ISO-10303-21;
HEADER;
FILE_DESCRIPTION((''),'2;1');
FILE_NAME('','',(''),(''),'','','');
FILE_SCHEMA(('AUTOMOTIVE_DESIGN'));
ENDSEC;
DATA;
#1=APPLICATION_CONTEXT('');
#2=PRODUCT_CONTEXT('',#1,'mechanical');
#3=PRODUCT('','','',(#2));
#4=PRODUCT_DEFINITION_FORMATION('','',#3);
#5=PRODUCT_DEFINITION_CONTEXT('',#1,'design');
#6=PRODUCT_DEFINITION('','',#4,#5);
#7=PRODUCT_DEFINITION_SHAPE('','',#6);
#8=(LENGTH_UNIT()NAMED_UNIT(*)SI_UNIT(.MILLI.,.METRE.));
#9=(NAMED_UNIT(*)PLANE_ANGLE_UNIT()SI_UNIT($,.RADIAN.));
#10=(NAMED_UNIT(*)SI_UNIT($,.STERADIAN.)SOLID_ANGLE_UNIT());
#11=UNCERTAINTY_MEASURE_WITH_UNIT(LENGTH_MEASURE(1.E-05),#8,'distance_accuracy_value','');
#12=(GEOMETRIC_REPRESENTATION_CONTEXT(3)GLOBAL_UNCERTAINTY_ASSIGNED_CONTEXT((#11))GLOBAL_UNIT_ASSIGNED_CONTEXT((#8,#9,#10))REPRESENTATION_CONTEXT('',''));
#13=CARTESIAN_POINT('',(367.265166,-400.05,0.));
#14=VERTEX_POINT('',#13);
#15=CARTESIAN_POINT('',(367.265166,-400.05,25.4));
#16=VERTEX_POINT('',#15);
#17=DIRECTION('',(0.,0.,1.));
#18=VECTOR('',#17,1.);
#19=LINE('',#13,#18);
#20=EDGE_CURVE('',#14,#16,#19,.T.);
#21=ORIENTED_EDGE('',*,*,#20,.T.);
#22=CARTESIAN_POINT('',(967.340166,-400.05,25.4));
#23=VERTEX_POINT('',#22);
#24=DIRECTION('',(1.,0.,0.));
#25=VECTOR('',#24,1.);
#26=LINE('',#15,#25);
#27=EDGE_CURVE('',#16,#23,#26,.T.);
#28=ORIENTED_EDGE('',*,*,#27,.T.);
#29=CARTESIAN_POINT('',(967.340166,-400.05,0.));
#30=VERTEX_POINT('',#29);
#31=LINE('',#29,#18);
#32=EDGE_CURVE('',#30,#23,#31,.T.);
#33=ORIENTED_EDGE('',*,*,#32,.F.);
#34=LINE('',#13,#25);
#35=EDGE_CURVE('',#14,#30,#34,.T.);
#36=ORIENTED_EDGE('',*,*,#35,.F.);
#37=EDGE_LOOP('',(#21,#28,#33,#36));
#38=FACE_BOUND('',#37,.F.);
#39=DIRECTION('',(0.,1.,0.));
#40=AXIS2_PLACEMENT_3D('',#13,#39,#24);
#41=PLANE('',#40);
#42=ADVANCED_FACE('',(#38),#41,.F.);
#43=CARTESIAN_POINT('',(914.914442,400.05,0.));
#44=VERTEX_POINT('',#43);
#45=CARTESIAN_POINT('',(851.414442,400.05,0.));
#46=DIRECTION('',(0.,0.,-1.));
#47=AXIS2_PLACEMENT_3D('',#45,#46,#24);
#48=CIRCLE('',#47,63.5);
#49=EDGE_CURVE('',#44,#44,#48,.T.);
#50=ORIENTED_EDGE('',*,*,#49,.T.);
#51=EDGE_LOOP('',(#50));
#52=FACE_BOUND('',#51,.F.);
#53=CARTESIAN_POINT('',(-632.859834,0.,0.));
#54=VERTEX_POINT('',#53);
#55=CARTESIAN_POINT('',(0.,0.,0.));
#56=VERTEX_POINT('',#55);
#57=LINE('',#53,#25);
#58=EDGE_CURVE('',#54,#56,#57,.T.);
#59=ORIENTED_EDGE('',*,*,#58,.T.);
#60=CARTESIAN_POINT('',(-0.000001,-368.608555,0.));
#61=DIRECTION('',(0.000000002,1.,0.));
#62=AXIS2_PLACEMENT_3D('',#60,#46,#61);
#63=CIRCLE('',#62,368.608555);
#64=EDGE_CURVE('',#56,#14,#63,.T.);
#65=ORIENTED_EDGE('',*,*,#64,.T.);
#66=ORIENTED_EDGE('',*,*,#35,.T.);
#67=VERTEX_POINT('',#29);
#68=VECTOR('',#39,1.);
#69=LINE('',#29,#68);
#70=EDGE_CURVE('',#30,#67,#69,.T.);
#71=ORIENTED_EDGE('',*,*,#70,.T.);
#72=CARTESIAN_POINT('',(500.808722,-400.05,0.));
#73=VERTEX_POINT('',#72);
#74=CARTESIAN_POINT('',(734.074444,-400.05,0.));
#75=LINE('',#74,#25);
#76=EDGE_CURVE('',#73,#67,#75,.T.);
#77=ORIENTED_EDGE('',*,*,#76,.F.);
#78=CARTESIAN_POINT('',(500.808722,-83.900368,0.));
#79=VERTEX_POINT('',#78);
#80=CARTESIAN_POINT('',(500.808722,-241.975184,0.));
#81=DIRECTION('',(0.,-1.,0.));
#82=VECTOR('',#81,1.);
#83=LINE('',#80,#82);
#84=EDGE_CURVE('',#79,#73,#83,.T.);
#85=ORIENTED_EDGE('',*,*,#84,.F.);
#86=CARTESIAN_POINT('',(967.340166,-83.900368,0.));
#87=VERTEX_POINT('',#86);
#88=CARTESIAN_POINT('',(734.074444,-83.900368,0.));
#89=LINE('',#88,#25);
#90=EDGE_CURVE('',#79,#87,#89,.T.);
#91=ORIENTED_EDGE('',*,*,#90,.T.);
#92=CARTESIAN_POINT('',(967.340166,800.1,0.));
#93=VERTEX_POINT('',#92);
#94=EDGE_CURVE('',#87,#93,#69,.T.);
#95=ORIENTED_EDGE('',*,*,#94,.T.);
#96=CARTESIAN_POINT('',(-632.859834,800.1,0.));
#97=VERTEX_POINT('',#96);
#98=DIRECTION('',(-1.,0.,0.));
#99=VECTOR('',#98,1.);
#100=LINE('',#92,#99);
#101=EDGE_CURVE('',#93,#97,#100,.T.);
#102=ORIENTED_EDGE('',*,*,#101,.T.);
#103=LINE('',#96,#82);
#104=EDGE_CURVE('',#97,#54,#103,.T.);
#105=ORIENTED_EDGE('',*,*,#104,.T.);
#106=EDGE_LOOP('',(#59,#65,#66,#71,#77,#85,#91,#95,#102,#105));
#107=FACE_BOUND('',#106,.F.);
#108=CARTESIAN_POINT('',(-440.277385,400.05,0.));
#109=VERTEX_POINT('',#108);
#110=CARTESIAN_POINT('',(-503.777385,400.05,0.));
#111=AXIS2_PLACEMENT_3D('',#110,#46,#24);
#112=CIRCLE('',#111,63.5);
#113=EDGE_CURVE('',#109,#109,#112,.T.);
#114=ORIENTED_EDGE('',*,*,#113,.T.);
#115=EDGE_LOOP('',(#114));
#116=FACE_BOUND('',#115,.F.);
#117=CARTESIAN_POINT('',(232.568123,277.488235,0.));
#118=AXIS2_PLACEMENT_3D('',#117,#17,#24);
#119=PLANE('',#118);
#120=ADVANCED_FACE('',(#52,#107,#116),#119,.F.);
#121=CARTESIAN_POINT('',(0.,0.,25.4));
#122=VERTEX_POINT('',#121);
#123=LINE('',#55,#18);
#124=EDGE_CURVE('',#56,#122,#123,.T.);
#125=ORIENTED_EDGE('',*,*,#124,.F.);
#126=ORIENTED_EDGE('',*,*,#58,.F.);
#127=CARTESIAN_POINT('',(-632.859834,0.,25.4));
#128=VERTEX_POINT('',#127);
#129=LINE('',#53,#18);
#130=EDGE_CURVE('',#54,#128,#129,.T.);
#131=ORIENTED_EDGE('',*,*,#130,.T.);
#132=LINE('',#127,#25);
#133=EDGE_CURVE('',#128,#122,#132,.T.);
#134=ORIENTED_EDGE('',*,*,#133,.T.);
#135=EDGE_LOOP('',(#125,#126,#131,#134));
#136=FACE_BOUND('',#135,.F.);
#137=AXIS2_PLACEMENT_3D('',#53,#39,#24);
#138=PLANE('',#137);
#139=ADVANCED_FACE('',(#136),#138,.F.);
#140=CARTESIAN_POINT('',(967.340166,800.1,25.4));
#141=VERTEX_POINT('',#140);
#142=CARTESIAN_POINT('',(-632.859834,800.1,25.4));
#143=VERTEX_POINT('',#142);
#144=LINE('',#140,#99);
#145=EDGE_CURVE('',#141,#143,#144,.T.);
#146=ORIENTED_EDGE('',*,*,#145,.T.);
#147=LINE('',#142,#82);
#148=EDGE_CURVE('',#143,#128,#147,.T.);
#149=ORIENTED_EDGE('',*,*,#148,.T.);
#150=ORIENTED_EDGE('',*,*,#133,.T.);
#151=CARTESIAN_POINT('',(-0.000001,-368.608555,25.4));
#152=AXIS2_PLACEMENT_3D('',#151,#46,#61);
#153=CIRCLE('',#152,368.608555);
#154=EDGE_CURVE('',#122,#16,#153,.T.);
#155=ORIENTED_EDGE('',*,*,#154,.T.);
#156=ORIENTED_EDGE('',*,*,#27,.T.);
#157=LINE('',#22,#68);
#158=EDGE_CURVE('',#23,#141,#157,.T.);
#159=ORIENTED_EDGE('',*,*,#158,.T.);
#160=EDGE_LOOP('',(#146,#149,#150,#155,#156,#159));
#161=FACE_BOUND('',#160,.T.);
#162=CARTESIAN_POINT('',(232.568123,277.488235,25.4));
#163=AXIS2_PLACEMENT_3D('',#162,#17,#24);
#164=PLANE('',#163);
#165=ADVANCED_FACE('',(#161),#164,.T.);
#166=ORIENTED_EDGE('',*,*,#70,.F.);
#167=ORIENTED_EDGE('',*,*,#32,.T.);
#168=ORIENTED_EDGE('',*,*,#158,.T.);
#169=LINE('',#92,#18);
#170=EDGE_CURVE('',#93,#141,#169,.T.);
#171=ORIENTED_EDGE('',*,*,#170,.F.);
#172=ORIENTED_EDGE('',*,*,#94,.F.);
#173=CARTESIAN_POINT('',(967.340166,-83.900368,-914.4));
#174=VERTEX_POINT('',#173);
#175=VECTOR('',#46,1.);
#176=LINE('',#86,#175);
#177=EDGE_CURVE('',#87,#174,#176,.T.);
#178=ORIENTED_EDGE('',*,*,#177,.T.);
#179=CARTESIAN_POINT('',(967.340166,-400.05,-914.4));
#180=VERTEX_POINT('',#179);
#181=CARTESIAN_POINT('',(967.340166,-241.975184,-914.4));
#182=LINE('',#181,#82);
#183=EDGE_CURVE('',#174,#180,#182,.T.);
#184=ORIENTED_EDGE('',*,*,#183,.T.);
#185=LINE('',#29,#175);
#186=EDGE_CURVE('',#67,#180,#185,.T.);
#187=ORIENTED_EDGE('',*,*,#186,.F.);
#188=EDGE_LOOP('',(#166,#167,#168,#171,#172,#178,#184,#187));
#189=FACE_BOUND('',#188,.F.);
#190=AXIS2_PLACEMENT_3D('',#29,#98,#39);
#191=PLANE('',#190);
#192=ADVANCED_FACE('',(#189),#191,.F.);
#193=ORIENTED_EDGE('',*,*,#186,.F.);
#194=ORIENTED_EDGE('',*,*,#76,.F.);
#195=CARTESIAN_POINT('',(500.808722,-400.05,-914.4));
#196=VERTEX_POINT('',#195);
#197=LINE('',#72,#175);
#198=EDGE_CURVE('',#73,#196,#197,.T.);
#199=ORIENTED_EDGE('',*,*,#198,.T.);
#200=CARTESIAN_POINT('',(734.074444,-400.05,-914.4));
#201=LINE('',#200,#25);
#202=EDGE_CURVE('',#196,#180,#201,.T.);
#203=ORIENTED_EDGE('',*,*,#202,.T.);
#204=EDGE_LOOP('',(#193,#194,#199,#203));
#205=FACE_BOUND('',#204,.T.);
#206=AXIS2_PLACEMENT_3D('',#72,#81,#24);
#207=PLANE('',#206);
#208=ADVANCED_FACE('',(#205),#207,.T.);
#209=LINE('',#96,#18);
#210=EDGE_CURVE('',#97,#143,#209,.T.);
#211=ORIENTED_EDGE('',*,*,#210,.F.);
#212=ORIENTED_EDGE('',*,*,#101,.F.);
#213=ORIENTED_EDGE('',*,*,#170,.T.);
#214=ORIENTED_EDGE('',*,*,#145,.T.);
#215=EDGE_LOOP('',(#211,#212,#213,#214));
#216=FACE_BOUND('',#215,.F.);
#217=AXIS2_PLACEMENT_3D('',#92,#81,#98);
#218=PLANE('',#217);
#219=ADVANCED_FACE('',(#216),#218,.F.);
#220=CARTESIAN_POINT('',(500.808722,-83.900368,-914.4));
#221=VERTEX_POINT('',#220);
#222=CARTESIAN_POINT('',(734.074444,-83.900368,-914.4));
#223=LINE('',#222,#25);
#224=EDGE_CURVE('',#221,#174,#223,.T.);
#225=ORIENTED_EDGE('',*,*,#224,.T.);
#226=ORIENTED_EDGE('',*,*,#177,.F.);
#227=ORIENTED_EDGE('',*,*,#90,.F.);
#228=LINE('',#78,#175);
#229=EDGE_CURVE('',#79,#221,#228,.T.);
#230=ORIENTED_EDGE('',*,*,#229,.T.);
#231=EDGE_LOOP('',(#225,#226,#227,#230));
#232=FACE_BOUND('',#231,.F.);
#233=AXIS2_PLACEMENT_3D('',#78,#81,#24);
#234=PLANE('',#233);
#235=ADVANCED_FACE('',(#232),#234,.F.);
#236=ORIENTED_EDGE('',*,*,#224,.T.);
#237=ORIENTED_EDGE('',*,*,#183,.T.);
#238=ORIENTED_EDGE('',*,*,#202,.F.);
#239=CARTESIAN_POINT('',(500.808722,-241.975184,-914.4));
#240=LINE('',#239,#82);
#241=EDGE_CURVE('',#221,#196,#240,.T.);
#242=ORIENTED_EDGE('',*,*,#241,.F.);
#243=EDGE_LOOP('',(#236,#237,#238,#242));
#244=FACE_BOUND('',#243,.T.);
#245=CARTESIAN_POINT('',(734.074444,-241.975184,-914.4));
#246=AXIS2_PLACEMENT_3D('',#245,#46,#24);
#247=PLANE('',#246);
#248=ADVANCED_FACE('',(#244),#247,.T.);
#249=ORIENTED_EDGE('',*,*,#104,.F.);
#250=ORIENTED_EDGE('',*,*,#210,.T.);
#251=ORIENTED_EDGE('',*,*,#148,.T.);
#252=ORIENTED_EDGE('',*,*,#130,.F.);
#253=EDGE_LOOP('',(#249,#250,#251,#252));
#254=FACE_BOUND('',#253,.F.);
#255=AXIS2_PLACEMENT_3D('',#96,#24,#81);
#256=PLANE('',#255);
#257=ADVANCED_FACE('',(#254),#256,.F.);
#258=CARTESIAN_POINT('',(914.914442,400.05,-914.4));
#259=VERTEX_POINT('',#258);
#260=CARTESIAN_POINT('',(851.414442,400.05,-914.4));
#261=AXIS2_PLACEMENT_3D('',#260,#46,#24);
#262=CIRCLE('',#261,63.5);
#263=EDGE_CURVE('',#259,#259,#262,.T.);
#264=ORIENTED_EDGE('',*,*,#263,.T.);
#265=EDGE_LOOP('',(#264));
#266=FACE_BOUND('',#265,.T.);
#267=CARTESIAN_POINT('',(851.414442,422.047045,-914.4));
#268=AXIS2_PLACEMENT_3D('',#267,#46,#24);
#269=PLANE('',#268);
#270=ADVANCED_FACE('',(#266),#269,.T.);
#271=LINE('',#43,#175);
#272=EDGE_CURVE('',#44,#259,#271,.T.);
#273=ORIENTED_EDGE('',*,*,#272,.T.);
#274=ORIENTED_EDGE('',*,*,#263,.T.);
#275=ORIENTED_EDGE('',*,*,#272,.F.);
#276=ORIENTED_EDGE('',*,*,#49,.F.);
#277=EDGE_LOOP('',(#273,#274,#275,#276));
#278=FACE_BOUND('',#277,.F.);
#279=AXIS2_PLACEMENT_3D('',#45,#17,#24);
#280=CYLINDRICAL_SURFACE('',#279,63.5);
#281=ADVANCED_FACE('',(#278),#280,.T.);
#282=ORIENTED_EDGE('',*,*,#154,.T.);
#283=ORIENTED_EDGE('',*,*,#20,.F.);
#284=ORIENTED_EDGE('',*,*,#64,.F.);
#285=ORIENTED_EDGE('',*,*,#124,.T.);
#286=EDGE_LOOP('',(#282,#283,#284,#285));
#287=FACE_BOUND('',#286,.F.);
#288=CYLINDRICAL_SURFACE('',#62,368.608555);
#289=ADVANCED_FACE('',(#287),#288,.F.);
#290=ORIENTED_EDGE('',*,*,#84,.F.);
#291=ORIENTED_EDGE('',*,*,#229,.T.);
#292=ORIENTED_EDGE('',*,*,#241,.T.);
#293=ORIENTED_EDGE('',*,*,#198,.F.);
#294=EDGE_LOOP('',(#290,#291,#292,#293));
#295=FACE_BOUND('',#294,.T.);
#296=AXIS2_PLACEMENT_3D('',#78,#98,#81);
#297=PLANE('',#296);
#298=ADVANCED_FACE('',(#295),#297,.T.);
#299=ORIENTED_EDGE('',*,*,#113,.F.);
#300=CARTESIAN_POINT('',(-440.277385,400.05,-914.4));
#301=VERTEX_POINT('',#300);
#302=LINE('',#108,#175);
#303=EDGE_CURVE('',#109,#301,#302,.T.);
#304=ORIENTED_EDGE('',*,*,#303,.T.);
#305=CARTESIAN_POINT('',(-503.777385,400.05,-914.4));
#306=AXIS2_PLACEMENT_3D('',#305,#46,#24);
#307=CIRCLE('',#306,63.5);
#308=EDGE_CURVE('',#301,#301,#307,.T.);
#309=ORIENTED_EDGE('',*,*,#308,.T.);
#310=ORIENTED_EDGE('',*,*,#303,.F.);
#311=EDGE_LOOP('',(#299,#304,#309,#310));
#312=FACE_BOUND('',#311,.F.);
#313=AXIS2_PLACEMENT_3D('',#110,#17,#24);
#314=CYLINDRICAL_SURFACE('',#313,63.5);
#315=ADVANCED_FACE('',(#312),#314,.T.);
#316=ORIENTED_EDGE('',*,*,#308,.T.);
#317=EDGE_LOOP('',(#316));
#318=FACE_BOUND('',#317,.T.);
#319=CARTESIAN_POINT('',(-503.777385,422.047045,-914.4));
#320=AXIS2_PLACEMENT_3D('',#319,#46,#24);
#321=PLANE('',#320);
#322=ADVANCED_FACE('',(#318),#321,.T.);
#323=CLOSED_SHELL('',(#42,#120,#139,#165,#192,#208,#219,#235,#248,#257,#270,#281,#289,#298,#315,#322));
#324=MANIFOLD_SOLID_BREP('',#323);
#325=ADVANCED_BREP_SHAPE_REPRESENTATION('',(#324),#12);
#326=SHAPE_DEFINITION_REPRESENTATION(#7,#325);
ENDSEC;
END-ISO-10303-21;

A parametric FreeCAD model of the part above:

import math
import FreeCAD as App
import Part
import Sketcher
Q = App.Units.Quantity


def add_polygon(sketch, points):
    """Adds a closed chain of lines whose ends are joined by coincident constraints."""
    first, n = sketch.GeometryCount, len(points)
    for a, b in zip(points, points[1:] + points[:1]):
        sketch.addGeometry(Part.LineSegment(App.Vector(*a, 0), App.Vector(*b, 0)), False)
    for i in range(n):
        sketch.addConstraint(Sketcher.Constraint("Coincident", first + i, 2, first + (i + 1) % n, 1))

doc = App.newDocument("Part")
body = doc.addObject("PartDesign::Body", "Body")

sketch1 = body.newObject("Sketcher::SketchObject", "Sketch")
sketch1.AttachmentSupport = (doc.getObject("XY_Plane"), [""])
sketch1.MapMode = "FlatFace"
sketch1.addGeometry([
    Part.LineSegment(App.Vector(-633, 800, 0), App.Vector(-633, 0, 0)),
    Part.LineSegment(App.Vector(-633, 0, 0), App.Vector(0, 0, 0)),
    Part.ArcOfCircle(Part.Circle(App.Vector(0, -369, 0), App.Vector(0, 0, 1), 369), math.radians(-5), math.radians(90)),
    Part.LineSegment(App.Vector(367, -400, 0), App.Vector(967, -400, 0)),
    Part.LineSegment(App.Vector(967, -400, 0), App.Vector(967, 800, 0)),
    Part.LineSegment(App.Vector(967, 800, 0), App.Vector(-633, 800, 0)),
], False)
sketch1.addConstraint([
    Sketcher.Constraint("Coincident", 0, 2, 1, 1),
    Sketcher.Constraint("Tangent", 1, 2, 2, 2),
    Sketcher.Constraint("Coincident", 2, 1, 3, 1),
    Sketcher.Constraint("Coincident", 3, 2, 4, 1),
    Sketcher.Constraint("Coincident", 4, 2, 5, 1),
    Sketcher.Constraint("Coincident", 5, 2, 0, 1),
    Sketcher.Constraint("Vertical", 0),
    Sketcher.Constraint("Horizontal", 1),
    Sketcher.Constraint("Horizontal", 3),
    Sketcher.Constraint("Vertical", 4),
    Sketcher.Constraint("Horizontal", 5),
    Sketcher.Constraint("Coincident", 1, 2, -1, 1),
    Sketcher.Constraint("DistanceX", 5, 2, 5, 1, Q("63 in")),
    Sketcher.Constraint("DistanceY", 0, 2, 0, 1, Q("31.5 in")),
    Sketcher.Constraint("DistanceY", 4, 1, 4, 2, Q("47.25 in")),
    Sketcher.Constraint("DistanceX", 3, 1, 3, 2, Q("23.625 in")),
    Sketcher.Constraint("Radius", 2, Q("368.608555 mm")),
])
pad1 = body.newObject("PartDesign::Pad", "Pad")
pad1.Profile = sketch1
pad1.Length = Q("1 in")

sketch2 = body.newObject("Sketcher::SketchObject", "Sketch001")
sketch2.AttachmentSupport = (doc.getObject("XY_Plane"), [""])
sketch2.MapMode = "FlatFace"
sketch2.addGeometry(Part.Circle(App.Vector(-504, 400, 0), App.Vector(0, 0, 1), 64), False)
sketch2.addGeometry(Part.Circle(App.Vector(851, 400, 0), App.Vector(0, 0, 1), 64), False)
add_polygon(sketch2, [(501, -400), (501, -84), (967, -84), (967, -400)])
sketch2.addConstraint([
    Sketcher.Constraint("Vertical", 2),
    Sketcher.Constraint("Horizontal", 3),
    Sketcher.Constraint("Vertical", 4),
    Sketcher.Constraint("Horizontal", 5),
    Sketcher.Constraint("Equal", 0, 1),
    Sketcher.Constraint("Horizontal", 0, 3, 1, 3),
    Sketcher.Constraint("Diameter", 0, Q("5 in")),
    Sketcher.Constraint("DistanceY", 4, 2, 1, 3, Q("31.5 in")),
    Sketcher.Constraint("DistanceY", -1, 1, 0, 3, Q("15.75 in")),
    Sketcher.Constraint("DistanceY", 2, 1, 2, 2, Q("316.149631 mm")),
    Sketcher.Constraint("DistanceX", 3, 1, 3, 2, Q("466.531444 mm")),
    Sketcher.Constraint("DistanceX", -1, 1, 1, 3, Q("851.414442 mm")),
    Sketcher.Constraint("DistanceX", -1, 1, 2, 2, Q("500.808722 mm")),
    Sketcher.Constraint("DistanceX", 0, 3, 3, 2, Q("1471.117551 mm")),
])
pad2 = body.newObject("PartDesign::Pad", "Pad001")
pad2.Profile = sketch2
pad2.Length = Q("36 in")
pad2.Reversed = True

doc.recompute()
